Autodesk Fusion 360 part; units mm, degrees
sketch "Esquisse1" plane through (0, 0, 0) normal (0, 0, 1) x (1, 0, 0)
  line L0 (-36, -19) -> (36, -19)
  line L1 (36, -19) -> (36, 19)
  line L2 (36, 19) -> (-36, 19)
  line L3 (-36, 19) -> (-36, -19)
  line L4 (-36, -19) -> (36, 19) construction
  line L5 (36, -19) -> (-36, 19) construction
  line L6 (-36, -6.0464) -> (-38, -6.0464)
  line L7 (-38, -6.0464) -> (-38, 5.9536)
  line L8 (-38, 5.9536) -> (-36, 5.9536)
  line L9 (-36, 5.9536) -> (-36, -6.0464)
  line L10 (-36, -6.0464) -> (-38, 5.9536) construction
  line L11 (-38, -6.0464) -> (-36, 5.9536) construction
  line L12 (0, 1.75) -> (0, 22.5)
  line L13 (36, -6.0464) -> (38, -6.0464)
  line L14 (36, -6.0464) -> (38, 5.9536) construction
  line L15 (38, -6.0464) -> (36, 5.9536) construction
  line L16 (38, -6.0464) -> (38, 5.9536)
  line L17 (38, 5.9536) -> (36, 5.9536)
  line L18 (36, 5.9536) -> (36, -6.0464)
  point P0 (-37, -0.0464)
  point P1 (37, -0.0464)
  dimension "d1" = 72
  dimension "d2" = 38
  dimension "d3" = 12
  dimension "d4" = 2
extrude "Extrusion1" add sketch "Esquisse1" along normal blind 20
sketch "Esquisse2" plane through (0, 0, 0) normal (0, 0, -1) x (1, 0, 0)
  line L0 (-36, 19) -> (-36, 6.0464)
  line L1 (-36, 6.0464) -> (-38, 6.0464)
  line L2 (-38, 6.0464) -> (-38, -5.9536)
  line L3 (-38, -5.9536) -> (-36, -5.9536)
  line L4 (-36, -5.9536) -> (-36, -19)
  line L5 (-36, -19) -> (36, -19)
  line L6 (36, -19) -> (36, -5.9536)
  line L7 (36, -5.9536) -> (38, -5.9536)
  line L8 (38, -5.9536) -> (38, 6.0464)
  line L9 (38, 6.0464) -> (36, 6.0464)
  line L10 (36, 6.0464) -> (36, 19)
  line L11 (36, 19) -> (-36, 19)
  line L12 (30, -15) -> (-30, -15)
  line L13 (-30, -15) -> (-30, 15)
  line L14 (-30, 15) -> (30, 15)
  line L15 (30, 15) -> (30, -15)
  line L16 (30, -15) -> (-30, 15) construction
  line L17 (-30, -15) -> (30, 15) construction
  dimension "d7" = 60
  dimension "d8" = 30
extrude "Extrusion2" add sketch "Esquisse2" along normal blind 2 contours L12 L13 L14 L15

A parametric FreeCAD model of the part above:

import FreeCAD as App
import Part
import Sketcher
from FreeCAD import Vector
Q = App.Units.Quantity


def add_polygon(sketch, points):
    """Adds a closed chain of lines whose ends are joined by coincident constraints."""
    first, n = sketch.GeometryCount, len(points)
    for a, b in zip(points, points[1:] + points[:1]):
        sketch.addGeometry(Part.LineSegment(App.Vector(*a, 0), App.Vector(*b, 0)), False)
    for i in range(n):
        sketch.addConstraint(Sketcher.Constraint("Coincident", first + i, 2, first + (i + 1) % n, 1))

doc = App.newDocument("Part")
body = doc.addObject("PartDesign::Body", "Body")

sketch1 = body.newObject("Sketcher::SketchObject", "Sketch")
sketch1.AttachmentSupport = (doc.getObject("XY_Plane"), [""])
sketch1.MapMode = "FlatFace"
add_polygon(sketch1, [(-36, -6), (-36, -19), (36, -19), (36, -6), (38, -6), (38, 6), (36, 6), (36, 19), (-36, 19), (-36, 6), (-38, 6), (-38, -6)])
sketch1.addConstraint([
    Sketcher.Constraint("Vertical", 0),
    Sketcher.Constraint("Horizontal", 1),
    Sketcher.Constraint("Vertical", 2),
    Sketcher.Constraint("Horizontal", 3),
    Sketcher.Constraint("Vertical", 4),
    Sketcher.Constraint("Horizontal", 5),
    Sketcher.Constraint("Vertical", 6),
    Sketcher.Constraint("Horizontal", 7),
    Sketcher.Constraint("Vertical", 8),
    Sketcher.Constraint("Horizontal", 9),
    Sketcher.Constraint("Vertical", 10),
    Sketcher.Constraint("Horizontal", 11),
    Sketcher.Constraint("Symmetric", 0, 2, 6, 2, -1, 1),
    Sketcher.Constraint("Symmetric", 5, 2, 8, 2, -2),
    Sketcher.Constraint("Symmetric", 3, 2, 10, 2, -2),
    Sketcher.Constraint("Vertical", 2, 2, 5, 2),
    Sketcher.Constraint("DistanceX", 1, 1, 1, 2, Q("72 mm")),
    Sketcher.Constraint("DistanceX", 3, 1, 3, 2, Q("2 mm")),
    Sketcher.Constraint("DistanceY", 4, 1, 4, 2, Q("12 mm")),
    Sketcher.Constraint("DistanceY", 1, 2, 6, 2, Q("38 mm")),
    Sketcher.Constraint("DistanceY", 0, 2, 0, 1, Q("12.9536 mm")),
])
pad1 = body.newObject("PartDesign::Pad", "Pad")
pad1.Profile = sketch1
pad1.Length = 20

sketch2 = body.newObject("Sketcher::SketchObject", "Sketch001")
sketch2.AttachmentSupport = (doc.getObject("XY_Plane"), [""])
sketch2.MapMode = "FlatFace"
add_polygon(sketch2, [(-30, 15), (30, 15), (30, -15), (-30, -15)])
sketch2.addConstraint([
    Sketcher.Constraint("Horizontal", 0),
    Sketcher.Constraint("Vertical", 1),
    Sketcher.Constraint("Horizontal", 2),
    Sketcher.Constraint("Vertical", 3),
    Sketcher.Constraint("Symmetric", 0, 2, 2, 2, -1, 1),
    Sketcher.Constraint("DistanceX", 0, 1, 0, 2, Q("60 mm")),
    Sketcher.Constraint("DistanceY", 1, 2, 1, 1, Q("30 mm")),
])
pad2 = body.newObject("PartDesign::Pad", "Pad001")
pad2.Profile = sketch2
pad2.Length = 2
pad2.Reversed = True

doc.recompute()
